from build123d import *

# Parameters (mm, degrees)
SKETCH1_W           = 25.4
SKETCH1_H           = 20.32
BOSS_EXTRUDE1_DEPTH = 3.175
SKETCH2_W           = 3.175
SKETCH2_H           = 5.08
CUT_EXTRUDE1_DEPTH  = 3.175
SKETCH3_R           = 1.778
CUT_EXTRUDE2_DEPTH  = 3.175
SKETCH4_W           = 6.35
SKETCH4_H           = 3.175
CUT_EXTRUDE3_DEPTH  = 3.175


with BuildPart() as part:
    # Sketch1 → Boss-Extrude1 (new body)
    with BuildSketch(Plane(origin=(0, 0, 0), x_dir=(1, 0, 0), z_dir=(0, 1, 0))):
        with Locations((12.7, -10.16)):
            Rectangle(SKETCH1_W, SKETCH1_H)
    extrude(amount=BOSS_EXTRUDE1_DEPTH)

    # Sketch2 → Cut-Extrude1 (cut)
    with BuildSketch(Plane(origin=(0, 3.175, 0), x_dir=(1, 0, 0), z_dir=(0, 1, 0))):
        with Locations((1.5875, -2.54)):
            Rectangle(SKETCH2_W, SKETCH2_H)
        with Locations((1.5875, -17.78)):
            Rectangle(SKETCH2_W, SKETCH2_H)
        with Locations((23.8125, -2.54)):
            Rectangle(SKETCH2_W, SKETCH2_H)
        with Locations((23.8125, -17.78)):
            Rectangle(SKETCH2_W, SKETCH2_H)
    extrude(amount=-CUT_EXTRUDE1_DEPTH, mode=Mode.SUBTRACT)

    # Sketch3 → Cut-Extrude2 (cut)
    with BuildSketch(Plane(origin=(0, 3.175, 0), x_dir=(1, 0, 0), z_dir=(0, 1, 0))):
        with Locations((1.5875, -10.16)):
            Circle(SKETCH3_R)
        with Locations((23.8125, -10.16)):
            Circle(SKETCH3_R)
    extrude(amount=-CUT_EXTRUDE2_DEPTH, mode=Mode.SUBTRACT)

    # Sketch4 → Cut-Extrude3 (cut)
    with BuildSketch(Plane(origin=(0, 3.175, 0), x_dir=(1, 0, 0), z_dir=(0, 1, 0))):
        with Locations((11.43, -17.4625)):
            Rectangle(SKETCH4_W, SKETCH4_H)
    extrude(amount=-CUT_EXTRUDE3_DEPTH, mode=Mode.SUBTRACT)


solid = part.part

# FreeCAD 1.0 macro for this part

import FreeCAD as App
import Part
import Sketcher
Q = App.Units.Quantity

doc = App.newDocument("Part")
params = doc.addObject("Spreadsheet::Sheet", "Params")
for row, (alias, value) in enumerate([
    ("sketch1_width", "1 in"),
    ("sketch1_height", "0.8 in"),
    ("pad1_length", "0.125 in"),
    ("sketch2_height", "0.2 in"),
    ("sketch2_width", "0.125 in"),
    ("pocket1_length", "0.125 in"),
    ("sketch3_diameter", "0.14 in"),
    ("pocket2_length", "0.125 in"),
    ("sketch4_width", "0.25 in"),
    ("sketch4_height", "0.125 in"),
    ("pocket3_length", "0.125 in"),
], start=1):
    params.set(f"A{row}", alias)
    params.set(f"B{row}", "=" + value)
    params.setAlias(f"B{row}", alias)

body = doc.addObject("PartDesign::Body", "Body")

# Sketch on XZ plane
sketch1 = body.newObject("Sketcher::SketchObject", "Sketch")
sketch1.AttachmentSupport = (doc.getObject("XZ_Plane"), [""])
sketch1.MapMode = "FlatFace"
sketch1.addGeometry([
    Part.LineSegment(App.Vector(0, 0, 0), App.Vector(0, 20, 0)),
    Part.LineSegment(App.Vector(0, 20, 0), App.Vector(25, 20, 0)),
    Part.LineSegment(App.Vector(25, 20, 0), App.Vector(25, 0, 0)),
    Part.LineSegment(App.Vector(25, 0, 0), App.Vector(0, 0, 0)),
], False)
sketch1.addConstraint([
    Sketcher.Constraint("Coincident", 0, 2, 1, 1),
    Sketcher.Constraint("Coincident", 1, 2, 2, 1),
    Sketcher.Constraint("Coincident", 2, 2, 3, 1),
    Sketcher.Constraint("Coincident", 3, 2, 0, 1),
    Sketcher.Constraint("Vertical", 0),
    Sketcher.Constraint("Horizontal", 1),
    Sketcher.Constraint("Vertical", 2),
    Sketcher.Constraint("Horizontal", 3),
    Sketcher.Constraint("Coincident", 3, 2, -1, 1),
    Sketcher.Constraint("DistanceX", 1, 1, 1, 2, Q("1 in")),
    Sketcher.Constraint("DistanceY", 0, 1, 0, 2, Q("0.8 in")),
])
sketch1.setExpression("Constraints[9]", "Params.sketch1_width")
sketch1.setExpression("Constraints[10]", "Params.sketch1_height")
pad1 = body.newObject("PartDesign::Pad", "Pad")
pad1.Profile = sketch1
pad1.setExpression("Length", "Params.pad1_length")
pad1.Reversed = True

# Sketch on XZ plane
sketch2 = body.newObject("Sketcher::SketchObject", "Sketch001")
sketch2.AttachmentSupport = (doc.getObject("XZ_Plane"), [""])
sketch2.MapMode = "FlatFace"
sketch2.AttachmentOffset = App.Placement(App.Vector(0, 0, -0.125 * 25.4), App.Rotation())
sketch2.addGeometry([
    Part.LineSegment(App.Vector(0, 0, 0), App.Vector(0, 5.1, 0)),  # 0
    Part.LineSegment(App.Vector(0, 5.1, 0), App.Vector(3.2, 5.1, 0)),  # 1
    Part.LineSegment(App.Vector(3.2, 5.1, 0), App.Vector(3.2, 0, 0)),  # 2
    Part.LineSegment(App.Vector(3.2, 0, 0), App.Vector(0, 0, 0)),  # 3
    Part.LineSegment(App.Vector(0, 15.2, 0), App.Vector(0, 20.3, 0)),  # 4
    Part.LineSegment(App.Vector(0, 20.3, 0), App.Vector(3.2, 20.3, 0)),  # 5
    Part.LineSegment(App.Vector(3.2, 20.3, 0), App.Vector(3.2, 15.2, 0)),  # 6
    Part.LineSegment(App.Vector(3.2, 15.2, 0), App.Vector(0, 15.2, 0)),  # 7
    Part.LineSegment(App.Vector(22.2, 0, 0), App.Vector(22.2, 5.1, 0)),  # 8
    Part.LineSegment(App.Vector(22.2, 5.1, 0), App.Vector(25.4, 5.1, 0)),  # 9
    Part.LineSegment(App.Vector(25.4, 5.1, 0), App.Vector(25.4, 0, 0)),  # 10
    Part.LineSegment(App.Vector(25.4, 0, 0), App.Vector(22.2, 0, 0)),  # 11
    Part.LineSegment(App.Vector(22.2, 15.2, 0), App.Vector(22.2, 20.3, 0)),  # 12
    Part.LineSegment(App.Vector(22.2, 20.3, 0), App.Vector(25.4, 20.3, 0)),  # 13
    Part.LineSegment(App.Vector(25.4, 20.3, 0), App.Vector(25.4, 15.2, 0)),  # 14
    Part.LineSegment(App.Vector(25.4, 15.2, 0), App.Vector(22.2, 15.2, 0)),  # 15
], False)
sketch2.addConstraint([
    Sketcher.Constraint("Coincident", 0, 2, 1, 1),
    Sketcher.Constraint("Coincident", 1, 2, 2, 1),
    Sketcher.Constraint("Coincident", 2, 2, 3, 1),
    Sketcher.Constraint("Coincident", 3, 2, 0, 1),
    Sketcher.Constraint("Coincident", 4, 2, 5, 1),
    Sketcher.Constraint("Coincident", 5, 2, 6, 1),
    Sketcher.Constraint("Coincident", 6, 2, 7, 1),
    Sketcher.Constraint("Coincident", 7, 2, 4, 1),
    Sketcher.Constraint("Coincident", 8, 2, 9, 1),
    Sketcher.Constraint("Coincident", 9, 2, 10, 1),
    Sketcher.Constraint("Coincident", 10, 2, 11, 1),
    Sketcher.Constraint("Coincident", 11, 2, 8, 1),
    Sketcher.Constraint("Coincident", 12, 2, 13, 1),
    Sketcher.Constraint("Coincident", 13, 2, 14, 1),
    Sketcher.Constraint("Coincident", 14, 2, 15, 1),
    Sketcher.Constraint("Coincident", 15, 2, 12, 1),
    Sketcher.Constraint("Vertical", 0),
    Sketcher.Constraint("Horizontal", 1),
    Sketcher.Constraint("Vertical", 2),
    Sketcher.Constraint("Horizontal", 3),
    Sketcher.Constraint("Vertical", 4),
    Sketcher.Constraint("Horizontal", 5),
    Sketcher.Constraint("Vertical", 6),
    Sketcher.Constraint("Horizontal", 7),
    Sketcher.Constraint("Vertical", 8),
    Sketcher.Constraint("Horizontal", 9),
    Sketcher.Constraint("Vertical", 10),
    Sketcher.Constraint("Horizontal", 11),
    Sketcher.Constraint("Vertical", 12),
    Sketcher.Constraint("Horizontal", 13),
    Sketcher.Constraint("Vertical", 14),
    Sketcher.Constraint("Horizontal", 15),
    Sketcher.Constraint("Coincident", 3, 2, -1, 1),
    Sketcher.Constraint("PointOnObject", 4, 2, -2),
    Sketcher.Constraint("PointOnObject", 10, 2, -1),
    Sketcher.Constraint("Horizontal", 1, 2, 8, 2),
    Sketcher.Constraint("Horizontal", 5, 2, 12, 2),
    Sketcher.Constraint("Horizontal", 7, 2, 14, 2),
    Sketcher.Constraint("Vertical", 2, 2, 5, 2),
    Sketcher.Constraint("Vertical", 11, 2, 12, 2),
    Sketcher.Constraint("Vertical", 10, 2, 13, 2),
    Sketcher.Constraint("Equal", 7, 9),
    Sketcher.Constraint("Equal", 2, 4),
    Sketcher.Constraint("DistanceY", 0, 1, 0, 2, Q("0.2 in")),
    Sketcher.Constraint("DistanceX", -1, 1, 9, 2, Q("1 in")),
    Sketcher.Constraint("DistanceY", -1, 1, 4, 2, Q("0.8 in")),
    Sketcher.Constraint("DistanceX", 1, 1, 1, 2, Q("0.125 in")),
])
sketch2.setExpression("Constraints[43]", "Params.sketch2_height")
sketch2.setExpression("Constraints[46]", "Params.sketch2_width")
pocket1 = body.newObject("PartDesign::Pocket", "Pocket")
pocket1.Profile = sketch2
pocket1.setExpression("Length", "Params.pocket1_length")
pocket1.Reversed = True

# Sketch on XZ plane
sketch3 = body.newObject("Sketcher::SketchObject", "Sketch002")
sketch3.AttachmentSupport = (doc.getObject("XZ_Plane"), [""])
sketch3.MapMode = "FlatFace"
sketch3.AttachmentOffset = App.Placement(App.Vector(0, 0, -0.125 * 25.4), App.Rotation())
sketch3.addGeometry([
    Part.Circle(App.Vector(1.6, 10.2, 0), App.Vector(0, 0, 1), 1.8),
    Part.Circle(App.Vector(23.8, 10.2, 0), App.Vector(0, 0, 1), 1.8),
], False)
sketch3.addConstraint([
    Sketcher.Constraint("Equal", 0, 1),
    Sketcher.Constraint("Horizontal", 0, 3, 1, 3),
    Sketcher.Constraint("Diameter", 0, Q("0.14 in")),
    Sketcher.Constraint("DistanceY", -1, 1, 0, 3, Q("0.4 in")),
    Sketcher.Constraint("DistanceX", -1, 1, 0, 3, Q("0.0625 in")),
    Sketcher.Constraint("DistanceX", -1, 1, 1, 3, Q("0.9375 in")),
])
sketch3.setExpression("Constraints[2]", "Params.sketch3_diameter")
pocket2 = body.newObject("PartDesign::Pocket", "Pocket001")
pocket2.Profile = sketch3
pocket2.setExpression("Length", "Params.pocket2_length")
pocket2.Reversed = True

# Sketch on XZ plane
sketch4 = body.newObject("Sketcher::SketchObject", "Sketch003")
sketch4.AttachmentSupport = (doc.getObject("XZ_Plane"), [""])
sketch4.MapMode = "FlatFace"
sketch4.AttachmentOffset = App.Placement(App.Vector(0, 0, -0.125 * 25.4), App.Rotation())
sketch4.addGeometry([
    Part.LineSegment(App.Vector(8.3, 15.9, 0), App.Vector(8.3, 19.1, 0)),
    Part.LineSegment(App.Vector(8.3, 19.1, 0), App.Vector(14.6, 19.1, 0)),
    Part.LineSegment(App.Vector(14.6, 19.1, 0), App.Vector(14.6, 15.9, 0)),
    Part.LineSegment(App.Vector(14.6, 15.9, 0), App.Vector(8.3, 15.9, 0)),
], False)
sketch4.addConstraint([
    Sketcher.Constraint("Coincident", 0, 2, 1, 1),
    Sketcher.Constraint("Coincident", 1, 2, 2, 1),
    Sketcher.Constraint("Coincident", 2, 2, 3, 1),
    Sketcher.Constraint("Coincident", 3, 2, 0, 1),
    Sketcher.Constraint("Vertical", 0),
    Sketcher.Constraint("Horizontal", 1),
    Sketcher.Constraint("Vertical", 2),
    Sketcher.Constraint("Horizontal", 3),
    Sketcher.Constraint("DistanceX", 1, 1, 1, 2, Q("0.25 in")),
    Sketcher.Constraint("DistanceY", 0, 1, 0, 2, Q("0.125 in")),
    Sketcher.Constraint("DistanceY", -1, 1, 0, 2, Q("0.75 in")),
    Sketcher.Constraint("DistanceX", -1, 1, 0, 2, Q("0.325 in")),
])
sketch4.setExpression("Constraints[8]", "Params.sketch4_width")
sketch4.setExpression("Constraints[9]", "Params.sketch4_height")
pocket3 = body.newObject("PartDesign::Pocket", "Pocket002")
pocket3.Profile = sketch4
pocket3.setExpression("Length", "Params.pocket3_length")
pocket3.Reversed = True

doc.recompute()
